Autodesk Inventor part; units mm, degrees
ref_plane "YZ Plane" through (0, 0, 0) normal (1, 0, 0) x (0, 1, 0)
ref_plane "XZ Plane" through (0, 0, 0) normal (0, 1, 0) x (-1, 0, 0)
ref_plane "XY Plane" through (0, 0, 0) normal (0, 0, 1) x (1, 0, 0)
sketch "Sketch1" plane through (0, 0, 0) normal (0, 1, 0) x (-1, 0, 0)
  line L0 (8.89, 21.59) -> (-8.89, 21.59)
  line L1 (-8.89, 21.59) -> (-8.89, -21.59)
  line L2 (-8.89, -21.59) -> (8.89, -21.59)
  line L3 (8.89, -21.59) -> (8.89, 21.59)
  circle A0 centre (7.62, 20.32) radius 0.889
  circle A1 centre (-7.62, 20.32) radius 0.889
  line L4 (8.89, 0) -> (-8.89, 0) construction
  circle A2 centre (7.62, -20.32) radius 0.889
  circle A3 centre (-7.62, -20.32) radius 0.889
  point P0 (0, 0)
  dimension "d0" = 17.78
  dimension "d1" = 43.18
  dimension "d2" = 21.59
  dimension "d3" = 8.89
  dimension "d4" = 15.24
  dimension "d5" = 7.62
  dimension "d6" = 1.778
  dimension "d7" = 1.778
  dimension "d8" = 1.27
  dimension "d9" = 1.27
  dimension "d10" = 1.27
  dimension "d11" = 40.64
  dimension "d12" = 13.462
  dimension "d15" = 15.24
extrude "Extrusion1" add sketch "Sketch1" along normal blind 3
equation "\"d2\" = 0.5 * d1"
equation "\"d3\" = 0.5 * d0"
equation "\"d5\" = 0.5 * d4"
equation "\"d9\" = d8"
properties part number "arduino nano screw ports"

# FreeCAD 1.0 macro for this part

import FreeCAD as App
import Part
import Sketcher
from FreeCAD import Vector
Q = App.Units.Quantity

doc = App.newDocument("Part")
body = doc.addObject("PartDesign::Body", "Body")

# Sketch on XZ plane
sketch1 = doc.addObject("Sketcher::SketchObject", "Sketch")
body.addObject(sketch1)
sketch1.AttachmentSupport = (doc.XZ_Plane, [""])
sketch1.MapMode = "FlatFace"
sketch1.addGeometry([
    Part.LineSegment(Vector(-8.89, -21.59, 0), Vector(-8.89, 21.59, 0)),  # 0
    Part.LineSegment(Vector(-8.89, 21.59, 0), Vector(8.89, 21.59, 0)),  # 1
    Part.LineSegment(Vector(8.89, 21.59, 0), Vector(8.89, -21.59, 0)),  # 2
    Part.LineSegment(Vector(8.89, -21.59, 0), Vector(-8.89, -21.59, 0)),  # 3
    Part.Circle(Vector(7.62, -20.32, 0), Vector(0, 0, 1), 0.889),  # 4
    Part.Circle(Vector(-7.62, -20.32, 0), Vector(0, 0, 1), 0.889),  # 5
    Part.Circle(Vector(7.62, 20.32, 0), Vector(0, 0, 1), 0.889),  # 6
    Part.Circle(Vector(-7.62, 20.32, 0), Vector(0, 0, 1), 0.889),  # 7
], False)
sketch1.addConstraint([
    Sketcher.Constraint("Coincident", 0, 2, 1, 1),
    Sketcher.Constraint("Coincident", 1, 2, 2, 1),
    Sketcher.Constraint("Coincident", 2, 2, 3, 1),
    Sketcher.Constraint("Coincident", 3, 2, 0, 1),
    Sketcher.Constraint("Vertical", 0),
    Sketcher.Constraint("Horizontal", 1),
    Sketcher.Constraint("Vertical", 2),
    Sketcher.Constraint("Horizontal", 3),
    Sketcher.Constraint("Equal", 4, 5),
    Sketcher.Constraint("Equal", 5, 6),
    Sketcher.Constraint("Equal", 6, 7),
    Sketcher.Constraint("Symmetric", 5, 3, 6, 3, -1, 1),
    Sketcher.Constraint("Symmetric", 4, 3, 7, 3, -1, 1),
    Sketcher.Constraint("Symmetric", 0, 2, 2, 2, -1, 1),
    Sketcher.Constraint("Symmetric", 4, 3, 5, 3, -2),
    Sketcher.Constraint("Diameter", 4, Q("0.07 in")),
    Sketcher.Constraint("DistanceX", 1, 1, 1, 2, Q("0.7 in")),
    Sketcher.Constraint("DistanceY", 0, 1, 0, 2, Q("1.7 in")),
    Sketcher.Constraint("DistanceX", -1, 1, 4, 3, Q("0.3 in")),
    Sketcher.Constraint("DistanceY", 4, 3, 6, 3, Q("1.6 in")),
])
pad1 = doc.addObject("PartDesign::Pad", "Pad")
body.addObject(pad1)
pad1.Profile = sketch1
pad1.Length = Q("0.1181102 in")
pad1.Reversed = True

doc.recompute()
